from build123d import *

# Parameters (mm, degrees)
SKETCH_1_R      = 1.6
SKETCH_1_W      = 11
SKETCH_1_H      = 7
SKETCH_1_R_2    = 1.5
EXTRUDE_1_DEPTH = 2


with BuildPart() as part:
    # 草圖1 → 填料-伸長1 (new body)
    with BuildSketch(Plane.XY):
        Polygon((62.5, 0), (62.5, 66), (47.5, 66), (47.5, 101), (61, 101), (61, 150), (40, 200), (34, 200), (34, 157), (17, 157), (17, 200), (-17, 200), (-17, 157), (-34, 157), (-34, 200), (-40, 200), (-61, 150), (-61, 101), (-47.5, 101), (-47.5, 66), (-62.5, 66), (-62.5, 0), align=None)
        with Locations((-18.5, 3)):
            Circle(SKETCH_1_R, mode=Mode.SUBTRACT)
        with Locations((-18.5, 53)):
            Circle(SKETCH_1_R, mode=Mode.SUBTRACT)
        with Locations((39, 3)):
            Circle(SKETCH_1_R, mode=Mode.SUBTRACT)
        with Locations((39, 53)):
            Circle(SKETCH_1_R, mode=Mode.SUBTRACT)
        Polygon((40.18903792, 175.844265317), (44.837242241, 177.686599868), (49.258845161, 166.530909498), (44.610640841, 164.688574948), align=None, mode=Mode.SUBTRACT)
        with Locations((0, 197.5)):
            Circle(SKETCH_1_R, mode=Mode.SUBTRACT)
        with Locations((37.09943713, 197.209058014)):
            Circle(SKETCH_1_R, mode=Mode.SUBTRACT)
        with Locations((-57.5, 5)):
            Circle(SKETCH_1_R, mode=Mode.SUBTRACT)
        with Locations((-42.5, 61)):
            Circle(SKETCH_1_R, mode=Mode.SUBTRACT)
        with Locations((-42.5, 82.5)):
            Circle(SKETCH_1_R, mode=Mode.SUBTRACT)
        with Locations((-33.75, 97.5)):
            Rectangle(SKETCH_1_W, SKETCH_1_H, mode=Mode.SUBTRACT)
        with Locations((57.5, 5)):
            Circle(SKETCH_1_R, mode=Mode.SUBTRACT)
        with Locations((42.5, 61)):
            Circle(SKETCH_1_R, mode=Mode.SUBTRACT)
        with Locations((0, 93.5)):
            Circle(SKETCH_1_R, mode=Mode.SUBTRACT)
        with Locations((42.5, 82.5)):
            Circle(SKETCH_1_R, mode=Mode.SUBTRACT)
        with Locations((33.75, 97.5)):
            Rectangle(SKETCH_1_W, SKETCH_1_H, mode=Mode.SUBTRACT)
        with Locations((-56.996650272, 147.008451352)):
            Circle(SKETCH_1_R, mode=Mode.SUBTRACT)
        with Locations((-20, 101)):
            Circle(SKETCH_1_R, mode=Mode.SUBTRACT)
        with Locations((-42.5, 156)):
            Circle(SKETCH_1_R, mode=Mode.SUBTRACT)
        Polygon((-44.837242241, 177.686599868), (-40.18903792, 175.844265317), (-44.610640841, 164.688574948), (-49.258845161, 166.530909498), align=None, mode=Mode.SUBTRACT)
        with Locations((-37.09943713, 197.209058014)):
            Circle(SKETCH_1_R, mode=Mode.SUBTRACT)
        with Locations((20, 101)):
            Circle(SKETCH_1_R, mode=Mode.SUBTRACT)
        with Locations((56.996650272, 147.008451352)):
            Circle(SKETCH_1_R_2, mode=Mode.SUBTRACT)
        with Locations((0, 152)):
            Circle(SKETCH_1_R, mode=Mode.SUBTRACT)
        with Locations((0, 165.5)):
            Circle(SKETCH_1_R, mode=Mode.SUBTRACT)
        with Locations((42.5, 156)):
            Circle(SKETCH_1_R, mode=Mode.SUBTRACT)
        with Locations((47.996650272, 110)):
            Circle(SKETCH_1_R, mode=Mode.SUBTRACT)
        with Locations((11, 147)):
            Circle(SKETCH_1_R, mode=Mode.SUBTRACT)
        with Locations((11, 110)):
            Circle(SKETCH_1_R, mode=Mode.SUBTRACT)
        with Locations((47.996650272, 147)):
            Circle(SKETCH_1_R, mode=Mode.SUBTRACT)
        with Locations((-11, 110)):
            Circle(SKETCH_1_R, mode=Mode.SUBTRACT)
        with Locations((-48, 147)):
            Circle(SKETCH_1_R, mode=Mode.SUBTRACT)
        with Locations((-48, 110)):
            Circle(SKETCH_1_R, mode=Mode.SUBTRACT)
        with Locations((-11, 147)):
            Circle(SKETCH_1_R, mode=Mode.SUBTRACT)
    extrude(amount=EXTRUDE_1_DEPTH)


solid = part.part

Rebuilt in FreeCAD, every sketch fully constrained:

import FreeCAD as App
import Part
import Sketcher
Q = App.Units.Quantity


def add_polygon(sketch, points):
    """Adds a closed chain of lines whose ends are joined by coincident constraints."""
    first, n = sketch.GeometryCount, len(points)
    for a, b in zip(points, points[1:] + points[:1]):
        sketch.addGeometry(Part.LineSegment(App.Vector(*a, 0), App.Vector(*b, 0)), False)
    for i in range(n):
        sketch.addConstraint(Sketcher.Constraint("Coincident", first + i, 2, first + (i + 1) % n, 1))

doc = App.newDocument("Part")
params = doc.addObject("Spreadsheet::Sheet", "Params")
for row, (alias, value) in enumerate([
    ("sketch1_diameter", "3 mm"),
    ("sketch1_diameter2", "3.2 mm"),
    ("sketch1_width", "15 mm"),
    ("sketch1_width2", "6 mm"),
    ("sketch1_width3", "17 mm"),
    ("pad1_length", "2 mm"),
], start=1):
    params.set(f"A{row}", alias)
    params.set(f"B{row}", "=" + value)
    params.setAlias(f"B{row}", alias)

body = doc.addObject("PartDesign::Body", "Body")

# Sketch on XY plane
sketch1 = body.newObject("Sketcher::SketchObject", "Sketch")
sketch1.AttachmentSupport = (doc.getObject("XY_Plane"), [""])
sketch1.MapMode = "FlatFace"
add_polygon(sketch1, [(62.5, 0), (62.5, 66), (47.5, 66), (47.5, 101), (61, 101), (61, 150), (40, 200), (34, 200), (34, 157), (17, 157), (17, 200), (-17, 200), (-17, 157), (-34, 157), (-34, 200), (-40, 200), (-61, 150), (-61, 101), (-47.5, 101), (-47.5, 66), (-62.5, 66), (-62.5, 0)])  # lines 0-21
sketch1.addGeometry(Part.Circle(App.Vector(-57.5, 5, 0), App.Vector(0, 0, 1), 1.6), False)  # 22
sketch1.addGeometry(Part.Circle(App.Vector(-18.5, 3, 0), App.Vector(0, 0, 1), 1.6), False)  # 23
sketch1.addGeometry(Part.Circle(App.Vector(-42.5, 61, 0), App.Vector(0, 0, 1), 1.6), False)  # 24
sketch1.addGeometry(Part.Circle(App.Vector(-42.5, 82.5, 0), App.Vector(0, 0, 1), 1.6), False)  # 25
add_polygon(sketch1, [(-28.2, 94), (-39.2, 94), (-39.2, 101), (-28.2, 101)])  # lines 26-29
sketch1.addGeometry(Part.Circle(App.Vector(-18.5, 53, 0), App.Vector(0, 0, 1), 1.6), False)  # 30
sketch1.addGeometry(Part.Circle(App.Vector(39, 3, 0), App.Vector(0, 0, 1), 1.6), False)  # 31
sketch1.addGeometry(Part.Circle(App.Vector(57.5, 5, 0), App.Vector(0, 0, 1), 1.6), False)  # 32
sketch1.addGeometry(Part.Circle(App.Vector(0, 93.5, 0), App.Vector(0, 0, 1), 1.6), False)  # 33
sketch1.addGeometry(Part.Circle(App.Vector(39, 53, 0), App.Vector(0, 0, 1), 1.6), False)  # 34
sketch1.addGeometry(Part.Circle(App.Vector(42.5, 61, 0), App.Vector(0, 0, 1), 1.6), False)  # 35
sketch1.addGeometry(Part.Circle(App.Vector(42.5, 82.5, 0), App.Vector(0, 0, 1), 1.6), False)  # 36
add_polygon(sketch1, [(39.2, 94), (28.2, 94), (28.2, 101), (39.2, 101)])  # lines 37-40
sketch1.addGeometry(Part.Circle(App.Vector(-48, 110, 0), App.Vector(0, 0, 1), 1.6), False)  # 41
sketch1.addGeometry(Part.Circle(App.Vector(-57, 147, 0), App.Vector(0, 0, 1), 1.6), False)  # 42
sketch1.addGeometry(Part.Circle(App.Vector(-48, 147, 0), App.Vector(0, 0, 1), 1.6), False)  # 43
sketch1.addGeometry(Part.Circle(App.Vector(-20, 101, 0), App.Vector(0, 0, 1), 1.6), False)  # 44
sketch1.addGeometry(Part.Circle(App.Vector(-11, 110, 0), App.Vector(0, 0, 1), 1.6), False)  # 45
sketch1.addGeometry(Part.Circle(App.Vector(-11, 147, 0), App.Vector(0, 0, 1), 1.6), False)  # 46
add_polygon(sketch1, [(-49.3, 166.5), (-44.8, 177.7), (-40.2, 175.8), (-44.6, 164.7)])  # lines 47-50
sketch1.addGeometry(Part.Circle(App.Vector(-42.5, 156, 0), App.Vector(0, 0, 1), 1.6), False)  # 51
sketch1.addGeometry(Part.Circle(App.Vector(-37.1, 197.2, 0), App.Vector(0, 0, 1), 1.6), False)  # 52
sketch1.addGeometry(Part.Circle(App.Vector(11, 110, 0), App.Vector(0, 0, 1), 1.6), False)  # 53
sketch1.addGeometry(Part.Circle(App.Vector(20, 101, 0), App.Vector(0, 0, 1), 1.6), False)  # 54
sketch1.addGeometry(Part.Circle(App.Vector(11, 147, 0), App.Vector(0, 0, 1), 1.6), False)  # 55
sketch1.addGeometry(Part.Circle(App.Vector(48, 110, 0), App.Vector(0, 0, 1), 1.6), False)  # 56
sketch1.addGeometry(Part.Circle(App.Vector(48, 147, 0), App.Vector(0, 0, 1), 1.6), False)  # 57
sketch1.addGeometry(Part.Circle(App.Vector(57, 147, 0), App.Vector(0, 0, 1), 1.5), False)  # 58
sketch1.addGeometry(Part.Circle(App.Vector(0, 152, 0), App.Vector(0, 0, 1), 1.6), False)  # 59
sketch1.addGeometry(Part.Circle(App.Vector(0, 165.5, 0), App.Vector(0, 0, 1), 1.6), False)  # 60
sketch1.addGeometry(Part.Circle(App.Vector(0, 197.5, 0), App.Vector(0, 0, 1), 1.6), False)  # 61
sketch1.addGeometry(Part.Circle(App.Vector(42.5, 156, 0), App.Vector(0, 0, 1), 1.6), False)  # 62
add_polygon(sketch1, [(44.6, 164.7), (40.2, 175.8), (44.8, 177.7), (49.3, 166.5)])  # lines 63-66
sketch1.addGeometry(Part.Circle(App.Vector(37.1, 197.2, 0), App.Vector(0, 0, 1), 1.6), False)  # 67
sketch1.addConstraint([
    Sketcher.Constraint("Vertical", 0),
    Sketcher.Constraint("Horizontal", 1),
    Sketcher.Constraint("Vertical", 2),
    Sketcher.Constraint("Horizontal", 3),
    Sketcher.Constraint("Vertical", 4),
    Sketcher.Constraint("Horizontal", 6),
    Sketcher.Constraint("Vertical", 7),
    Sketcher.Constraint("Horizontal", 8),
    Sketcher.Constraint("Vertical", 9),
    Sketcher.Constraint("Horizontal", 10),
    Sketcher.Constraint("Vertical", 11),
    Sketcher.Constraint("Horizontal", 12),
    Sketcher.Constraint("Vertical", 13),
    Sketcher.Constraint("Horizontal", 14),
    Sketcher.Constraint("Vertical", 16),
    Sketcher.Constraint("Horizontal", 17),
    Sketcher.Constraint("Vertical", 18),
    Sketcher.Constraint("Horizontal", 19),
    Sketcher.Constraint("Vertical", 20),
    Sketcher.Constraint("Horizontal", 21),
    Sketcher.Constraint("Horizontal", 26),
    Sketcher.Constraint("Vertical", 27),
    Sketcher.Constraint("Horizontal", 28),
    Sketcher.Constraint("Vertical", 29),
    Sketcher.Constraint("Horizontal", 37),
    Sketcher.Constraint("Vertical", 38),
    Sketcher.Constraint("Horizontal", 39),
    Sketcher.Constraint("Vertical", 40),
    Sketcher.Constraint("Equal", 22, 23),
    Sketcher.Constraint("Equal", 23, 24),
    Sketcher.Constraint("Equal", 24, 25),
    Sketcher.Constraint("Equal", 25, 30),
    Sketcher.Constraint("Equal", 30, 31),
    Sketcher.Constraint("Equal", 31, 32),
    Sketcher.Constraint("Equal", 32, 33),
    Sketcher.Constraint("Equal", 33, 34),
    Sketcher.Constraint("Equal", 34, 35),
    Sketcher.Constraint("Equal", 35, 36),
    Sketcher.Constraint("Equal", 36, 41),
    Sketcher.Constraint("Equal", 41, 42),
    Sketcher.Constraint("Equal", 42, 43),
    Sketcher.Constraint("Equal", 43, 44),
    Sketcher.Constraint("Equal", 44, 45),
    Sketcher.Constraint("Equal", 45, 46),
    Sketcher.Constraint("Equal", 46, 51),
    Sketcher.Constraint("Equal", 51, 52),
    Sketcher.Constraint("Equal", 52, 53),
    Sketcher.Constraint("Equal", 53, 54),
    Sketcher.Constraint("Equal", 54, 55),
    Sketcher.Constraint("Equal", 55, 56),
    Sketcher.Constraint("Equal", 56, 57),
    Sketcher.Constraint("Equal", 57, 59),
    Sketcher.Constraint("Equal", 59, 60),
    Sketcher.Constraint("Equal", 60, 61),
    Sketcher.Constraint("Equal", 61, 62),
    Sketcher.Constraint("Equal", 62, 67),
    Sketcher.Constraint("Symmetric", 20, 2, 21, 2, -1, 1),
    Sketcher.Constraint("Symmetric", 22, 3, 32, 3, -2),
    Sketcher.Constraint("Symmetric", 24, 3, 35, 3, -2),
    Sketcher.Constraint("Symmetric", 25, 3, 36, 3, -2),
    Sketcher.Constraint("Symmetric", 45, 3, 53, 3, -2),
    Sketcher.Constraint("Symmetric", 44, 3, 54, 3, -2),
    Sketcher.Constraint("Symmetric", 46, 3, 55, 3, -2),
    Sketcher.Constraint("Symmetric", 42, 3, 58, 3, -2),
    Sketcher.Constraint("Symmetric", 51, 3, 62, 3, -2),
    Sketcher.Constraint("Symmetric", 52, 3, 67, 3, -2),
    Sketcher.Constraint("Symmetric", 8, 2, 11, 2, -2),
    Sketcher.Constraint("Symmetric", 6, 2, 13, 2, -2),
    Sketcher.Constraint("Symmetric", 4, 2, 15, 2, -2),
    Sketcher.Constraint("Symmetric", 2, 2, 17, 2, -2),
    Sketcher.Constraint("Symmetric", 29, 2, 37, 2, -2),
    Sketcher.Constraint("Symmetric", 27, 2, 39, 2, -2),
    Sketcher.Constraint("Symmetric", 48, 2, 63, 2, -2),
    Sketcher.Constraint("Symmetric", 47, 2, 64, 2, -2),
    Sketcher.Constraint("Symmetric", 50, 2, 65, 2, -2),
    Sketcher.Constraint("Symmetric", 49, 2, 66, 2, -2),
    Sketcher.Constraint("PointOnObject", 33, 3, -2),
    Sketcher.Constraint("PointOnObject", 59, 3, -2),
    Sketcher.Constraint("PointOnObject", 60, 3, -2),
    Sketcher.Constraint("PointOnObject", 61, 3, -2),
    Sketcher.Constraint("Perpendicular", 47, 48),
    Sketcher.Constraint("Perpendicular", 48, 49),
    Sketcher.Constraint("Perpendicular", 49, 50),
    Sketcher.Constraint("Horizontal", 23, 3, 31, 3),
    Sketcher.Constraint("Horizontal", 30, 3, 34, 3),
    Sketcher.Constraint("Horizontal", 41, 3, 45, 3),
    Sketcher.Constraint("Horizontal", 43, 3, 46, 3),
    Sketcher.Constraint("Horizontal", 53, 3, 56, 3),
    Sketcher.Constraint("Horizontal", 55, 3, 57, 3),
    Sketcher.Constraint("Horizontal", 54, 3, 2, 2),
    Sketcher.Constraint("Horizontal", 6, 2, 9, 2),
    Sketcher.Constraint("Horizontal", 1, 2, 18, 2),
    Sketcher.Constraint("Horizontal", 17, 2, 27, 2),
    Sketcher.Constraint("Vertical", 24, 3, 25, 3),
    Sketcher.Constraint("Vertical", 23, 3, 30, 3),
    Sketcher.Constraint("Vertical", 31, 3, 34, 3),
    Sketcher.Constraint("Vertical", 41, 3, 43, 3),
    Sketcher.Constraint("Vertical", 45, 3, 46, 3),
    Sketcher.Constraint("Vertical", 25, 3, 51, 3),
    Sketcher.Constraint("Vertical", 56, 3, 57, 3),
    Sketcher.Constraint("Equal", 6, 14),
    Sketcher.Constraint("Diameter", 58, Q("3 mm")),
    Sketcher.Constraint("Diameter", 22, Q("3.2 mm")),
    Sketcher.Constraint("DistanceX", 1, 2, 1, 1, Q("15 mm")),
    Sketcher.Constraint("DistanceX", 6, 2, 6, 1, Q("6 mm")),
    Sketcher.Constraint("DistanceX", 8, 2, 8, 1, Q("17 mm")),
    Sketcher.Constraint("DistanceX", 10, 2, 10, 1, Q("34 mm")),
    Sketcher.Constraint("DistanceX", 21, 1, 21, 2, Q("125 mm")),
    Sketcher.Constraint("DistanceX", 26, 2, 26, 1, Q("11 mm")),
    Sketcher.Constraint("DistanceY", 0, 1, 0, 2, Q("66 mm")),
    Sketcher.Constraint("DistanceY", 2, 1, 2, 2, Q("35 mm")),
    Sketcher.Constraint("DistanceY", 4, 1, 4, 2, Q("49 mm")),
    Sketcher.Constraint("DistanceY", 7, 2, 7, 1, Q("43 mm")),
    Sketcher.Constraint("DistanceY", 27, 1, 27, 2, Q("7 mm")),
    Sketcher.Constraint("Distance", 47, Q("12 mm")),
    Sketcher.Constraint("Distance", 48, Q("5 mm")),
    Sketcher.Constraint("DistanceX", 3, 1, 3, 2, Q("13.5 mm")),
    Sketcher.Constraint("DistanceY", -1, 1, 22, 3, Q("5 mm")),
    Sketcher.Constraint("DistanceY", -1, 1, 23, 3, Q("3 mm")),
    Sketcher.Constraint("DistanceY", -1, 1, 24, 3, Q("61 mm")),
    Sketcher.Constraint("DistanceY", -1, 1, 30, 3, Q("53 mm")),
    Sketcher.Constraint("DistanceX", -1, 1, 31, 3, Q("39 mm")),
    Sketcher.Constraint("DistanceX", 41, 3, -1, 1, Q("48 mm")),
    Sketcher.Constraint("DistanceY", -1, 1, 41, 3, Q("110 mm")),
    Sketcher.Constraint("DistanceY", -1, 1, 43, 3, Q("147 mm")),
    Sketcher.Constraint("DistanceX", 44, 3, -1, 1, Q("20 mm")),
    Sketcher.Constraint("DistanceX", 45, 3, -1, 1, Q("11 mm")),
    Sketcher.Constraint("DistanceY", -1, 1, 51, 3, Q("156 mm")),
    Sketcher.Constraint("DistanceY", -1, 1, 59, 3, Q("152 mm")),
    Sketcher.Constraint("DistanceY", -1, 1, 5, 2, Q("200 mm")),
    Sketcher.Constraint("DistanceX", 22, 3, -1, 1, Q("57.5 mm")),
    Sketcher.Constraint("DistanceX", 23, 3, -1, 1, Q("18.5 mm")),
    Sketcher.Constraint("DistanceX", 24, 3, -1, 1, Q("42.5 mm")),
    Sketcher.Constraint("DistanceY", -1, 1, 25, 3, Q("82.5 mm")),
    Sketcher.Constraint("DistanceY", -1, 1, 33, 3, Q("93.5 mm")),
    Sketcher.Constraint("DistanceY", -1, 1, 60, 3, Q("165.5 mm")),
    Sketcher.Constraint("DistanceY", -1, 1, 61, 3, Q("197.5 mm")),
    Sketcher.Constraint("DistanceX", 26, 2, -1, 1, Q("39.25 mm")),
    Sketcher.Constraint("DistanceY", -1, 1, 47, 2, Q("177.6866 mm")),
    Sketcher.Constraint("DistanceX", 42, 3, -1, 1, Q("56.99665 mm")),
    Sketcher.Constraint("DistanceY", -1, 1, 42, 3, Q("147.008451 mm")),
    Sketcher.Constraint("DistanceY", -1, 1, 52, 3, Q("197.209058 mm")),
    Sketcher.Constraint("DistanceX", -1, 1, 56, 3, Q("47.99665 mm")),
    Sketcher.Constraint("DistanceX", 49, 2, -1, 1, Q("44.610641 mm")),
    Sketcher.Constraint("DistanceY", -1, 1, 50, 2, Q("166.530909 mm")),
    Sketcher.Constraint("DistanceX", 52, 3, -1, 1, Q("37.099437 mm")),
])
sketch1.setExpression("Constraints[139]", "Params.sketch1_diameter")
sketch1.setExpression("Constraints[140]", "Params.sketch1_diameter2")
sketch1.setExpression("Constraints[141]", "Params.sketch1_width")
sketch1.setExpression("Constraints[142]", "Params.sketch1_width2")
sketch1.setExpression("Constraints[143]", "Params.sketch1_width3")
pad1 = body.newObject("PartDesign::Pad", "Pad")
pad1.Profile = sketch1
pad1.setExpression("Length", "Params.pad1_length")

doc.recompute()
